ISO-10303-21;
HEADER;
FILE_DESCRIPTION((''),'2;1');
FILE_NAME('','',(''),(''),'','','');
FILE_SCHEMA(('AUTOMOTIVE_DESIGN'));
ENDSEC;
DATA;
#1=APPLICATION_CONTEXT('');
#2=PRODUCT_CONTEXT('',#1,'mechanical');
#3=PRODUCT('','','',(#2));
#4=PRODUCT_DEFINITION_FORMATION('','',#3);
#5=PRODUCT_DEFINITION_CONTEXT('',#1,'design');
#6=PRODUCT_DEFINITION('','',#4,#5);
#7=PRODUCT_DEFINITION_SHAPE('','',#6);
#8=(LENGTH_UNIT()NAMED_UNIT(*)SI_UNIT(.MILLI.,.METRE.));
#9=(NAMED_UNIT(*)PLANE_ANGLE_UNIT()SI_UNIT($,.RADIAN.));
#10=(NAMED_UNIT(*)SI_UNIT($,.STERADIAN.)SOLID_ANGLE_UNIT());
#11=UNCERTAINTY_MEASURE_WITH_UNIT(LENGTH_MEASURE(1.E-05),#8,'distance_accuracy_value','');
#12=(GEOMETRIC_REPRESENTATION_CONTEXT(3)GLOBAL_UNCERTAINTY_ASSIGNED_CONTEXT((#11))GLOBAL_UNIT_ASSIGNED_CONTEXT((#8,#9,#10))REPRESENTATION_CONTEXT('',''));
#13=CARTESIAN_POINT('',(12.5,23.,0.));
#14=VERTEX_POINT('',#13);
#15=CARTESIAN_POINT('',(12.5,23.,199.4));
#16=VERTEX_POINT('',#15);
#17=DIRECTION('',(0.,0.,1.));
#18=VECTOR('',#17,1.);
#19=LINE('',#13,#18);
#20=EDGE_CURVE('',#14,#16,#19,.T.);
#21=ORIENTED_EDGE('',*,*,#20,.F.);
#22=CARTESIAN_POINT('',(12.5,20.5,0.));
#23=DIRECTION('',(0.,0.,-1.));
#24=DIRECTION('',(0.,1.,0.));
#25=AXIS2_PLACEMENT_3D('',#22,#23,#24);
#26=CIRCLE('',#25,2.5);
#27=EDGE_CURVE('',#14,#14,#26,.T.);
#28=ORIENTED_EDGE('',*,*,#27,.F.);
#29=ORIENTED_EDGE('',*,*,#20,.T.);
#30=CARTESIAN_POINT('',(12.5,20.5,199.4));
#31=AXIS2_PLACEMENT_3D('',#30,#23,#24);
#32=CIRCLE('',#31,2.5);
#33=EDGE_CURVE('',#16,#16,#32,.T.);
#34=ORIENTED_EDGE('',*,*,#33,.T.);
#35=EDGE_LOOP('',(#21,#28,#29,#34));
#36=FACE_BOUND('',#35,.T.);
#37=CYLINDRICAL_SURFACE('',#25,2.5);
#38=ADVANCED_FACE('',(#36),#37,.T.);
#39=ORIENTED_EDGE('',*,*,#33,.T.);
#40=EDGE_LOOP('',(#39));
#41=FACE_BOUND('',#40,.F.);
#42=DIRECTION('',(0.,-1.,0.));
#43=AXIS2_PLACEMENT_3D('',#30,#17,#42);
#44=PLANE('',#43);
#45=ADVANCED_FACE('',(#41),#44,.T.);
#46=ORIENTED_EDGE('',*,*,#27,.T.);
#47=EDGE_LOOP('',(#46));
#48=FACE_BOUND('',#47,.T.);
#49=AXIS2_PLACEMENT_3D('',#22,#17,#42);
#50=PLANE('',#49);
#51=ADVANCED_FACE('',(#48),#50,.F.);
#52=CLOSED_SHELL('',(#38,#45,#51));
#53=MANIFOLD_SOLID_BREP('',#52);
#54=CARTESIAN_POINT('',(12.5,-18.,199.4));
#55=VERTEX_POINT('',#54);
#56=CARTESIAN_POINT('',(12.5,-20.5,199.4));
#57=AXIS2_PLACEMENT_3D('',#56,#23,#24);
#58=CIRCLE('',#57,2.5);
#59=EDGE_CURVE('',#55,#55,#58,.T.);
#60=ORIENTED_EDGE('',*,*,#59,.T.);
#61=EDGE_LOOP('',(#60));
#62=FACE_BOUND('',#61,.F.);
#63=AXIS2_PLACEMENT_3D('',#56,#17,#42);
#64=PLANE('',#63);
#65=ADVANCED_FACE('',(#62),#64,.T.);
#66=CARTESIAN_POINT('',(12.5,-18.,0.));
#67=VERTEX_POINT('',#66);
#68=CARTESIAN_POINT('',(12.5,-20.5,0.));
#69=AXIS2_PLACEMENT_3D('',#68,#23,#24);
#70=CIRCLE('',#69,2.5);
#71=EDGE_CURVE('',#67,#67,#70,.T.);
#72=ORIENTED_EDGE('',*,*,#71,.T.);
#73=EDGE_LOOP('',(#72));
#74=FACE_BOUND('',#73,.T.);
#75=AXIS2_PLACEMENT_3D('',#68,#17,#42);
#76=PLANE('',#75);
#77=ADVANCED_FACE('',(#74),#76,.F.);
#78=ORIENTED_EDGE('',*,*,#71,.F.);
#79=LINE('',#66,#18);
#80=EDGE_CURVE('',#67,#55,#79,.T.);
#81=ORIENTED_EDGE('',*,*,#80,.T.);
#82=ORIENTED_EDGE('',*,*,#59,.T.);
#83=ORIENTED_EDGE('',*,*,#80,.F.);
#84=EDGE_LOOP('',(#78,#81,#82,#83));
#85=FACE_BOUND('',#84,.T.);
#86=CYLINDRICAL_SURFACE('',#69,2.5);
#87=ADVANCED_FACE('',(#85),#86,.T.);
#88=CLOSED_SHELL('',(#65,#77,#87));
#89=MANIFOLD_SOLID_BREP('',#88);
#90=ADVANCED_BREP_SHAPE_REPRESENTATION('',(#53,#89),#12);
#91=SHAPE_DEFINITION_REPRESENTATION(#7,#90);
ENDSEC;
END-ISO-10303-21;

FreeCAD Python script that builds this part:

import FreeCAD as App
import Part
import Sketcher
from FreeCAD import Vector
Q = App.Units.Quantity

doc = App.newDocument("Part")
body = doc.addObject("PartDesign::Body", "Body")
body.AllowCompound = True

# Sketch on XY plane
sketch1 = body.newObject("Sketcher::SketchObject", "Sketch")
sketch1.AttachmentSupport = (doc.getObject("XY_Plane"), [""])
sketch1.MapMode = "FlatFace"
sketch1.addGeometry(Part.Circle(Vector(-12.5, -20.5, 0), Vector(0, 0, 1), 2.5), False)
sketch1.addGeometry(Part.Circle(Vector(-12.5, 20.5, 0), Vector(0, 0, 1), 2.5), False)
sketch1.addConstraint(Sketcher.Constraint("Equal", 0, 1))
sketch1.addConstraint(Sketcher.Constraint("Symmetric", 0, 3, 1, 3, -1))
sketch1.addConstraint(Sketcher.Constraint("Diameter", 0, Q("5 mm")))
sketch1.addConstraint(Sketcher.Constraint("DistanceY", 0, 3, 1, 3, Q("41 mm")))
sketch1.addConstraint(Sketcher.Constraint("DistanceX", 0, 3, -1, 1, Q("12.5 mm")))
pad1 = body.newObject("PartDesign::Pad", "Pad")
pad1.Profile = sketch1
pad1.Length = 199.4
body2 = doc.addObject("PartDesign::Body", "Body001")
body2.AllowCompound = True
doc.recompute()

mirroring = doc.addObject("Part::Mirroring", "Mirroring")
mirroring.Source = body
mirroring.Base = Vector(0, 0, 0)
mirroring.Normal = Vector(1, 0, 0)
body2.BaseFeature = mirroring
doc.recompute()
body.Visibility = False
mirroring.Visibility = False

doc.recompute()
